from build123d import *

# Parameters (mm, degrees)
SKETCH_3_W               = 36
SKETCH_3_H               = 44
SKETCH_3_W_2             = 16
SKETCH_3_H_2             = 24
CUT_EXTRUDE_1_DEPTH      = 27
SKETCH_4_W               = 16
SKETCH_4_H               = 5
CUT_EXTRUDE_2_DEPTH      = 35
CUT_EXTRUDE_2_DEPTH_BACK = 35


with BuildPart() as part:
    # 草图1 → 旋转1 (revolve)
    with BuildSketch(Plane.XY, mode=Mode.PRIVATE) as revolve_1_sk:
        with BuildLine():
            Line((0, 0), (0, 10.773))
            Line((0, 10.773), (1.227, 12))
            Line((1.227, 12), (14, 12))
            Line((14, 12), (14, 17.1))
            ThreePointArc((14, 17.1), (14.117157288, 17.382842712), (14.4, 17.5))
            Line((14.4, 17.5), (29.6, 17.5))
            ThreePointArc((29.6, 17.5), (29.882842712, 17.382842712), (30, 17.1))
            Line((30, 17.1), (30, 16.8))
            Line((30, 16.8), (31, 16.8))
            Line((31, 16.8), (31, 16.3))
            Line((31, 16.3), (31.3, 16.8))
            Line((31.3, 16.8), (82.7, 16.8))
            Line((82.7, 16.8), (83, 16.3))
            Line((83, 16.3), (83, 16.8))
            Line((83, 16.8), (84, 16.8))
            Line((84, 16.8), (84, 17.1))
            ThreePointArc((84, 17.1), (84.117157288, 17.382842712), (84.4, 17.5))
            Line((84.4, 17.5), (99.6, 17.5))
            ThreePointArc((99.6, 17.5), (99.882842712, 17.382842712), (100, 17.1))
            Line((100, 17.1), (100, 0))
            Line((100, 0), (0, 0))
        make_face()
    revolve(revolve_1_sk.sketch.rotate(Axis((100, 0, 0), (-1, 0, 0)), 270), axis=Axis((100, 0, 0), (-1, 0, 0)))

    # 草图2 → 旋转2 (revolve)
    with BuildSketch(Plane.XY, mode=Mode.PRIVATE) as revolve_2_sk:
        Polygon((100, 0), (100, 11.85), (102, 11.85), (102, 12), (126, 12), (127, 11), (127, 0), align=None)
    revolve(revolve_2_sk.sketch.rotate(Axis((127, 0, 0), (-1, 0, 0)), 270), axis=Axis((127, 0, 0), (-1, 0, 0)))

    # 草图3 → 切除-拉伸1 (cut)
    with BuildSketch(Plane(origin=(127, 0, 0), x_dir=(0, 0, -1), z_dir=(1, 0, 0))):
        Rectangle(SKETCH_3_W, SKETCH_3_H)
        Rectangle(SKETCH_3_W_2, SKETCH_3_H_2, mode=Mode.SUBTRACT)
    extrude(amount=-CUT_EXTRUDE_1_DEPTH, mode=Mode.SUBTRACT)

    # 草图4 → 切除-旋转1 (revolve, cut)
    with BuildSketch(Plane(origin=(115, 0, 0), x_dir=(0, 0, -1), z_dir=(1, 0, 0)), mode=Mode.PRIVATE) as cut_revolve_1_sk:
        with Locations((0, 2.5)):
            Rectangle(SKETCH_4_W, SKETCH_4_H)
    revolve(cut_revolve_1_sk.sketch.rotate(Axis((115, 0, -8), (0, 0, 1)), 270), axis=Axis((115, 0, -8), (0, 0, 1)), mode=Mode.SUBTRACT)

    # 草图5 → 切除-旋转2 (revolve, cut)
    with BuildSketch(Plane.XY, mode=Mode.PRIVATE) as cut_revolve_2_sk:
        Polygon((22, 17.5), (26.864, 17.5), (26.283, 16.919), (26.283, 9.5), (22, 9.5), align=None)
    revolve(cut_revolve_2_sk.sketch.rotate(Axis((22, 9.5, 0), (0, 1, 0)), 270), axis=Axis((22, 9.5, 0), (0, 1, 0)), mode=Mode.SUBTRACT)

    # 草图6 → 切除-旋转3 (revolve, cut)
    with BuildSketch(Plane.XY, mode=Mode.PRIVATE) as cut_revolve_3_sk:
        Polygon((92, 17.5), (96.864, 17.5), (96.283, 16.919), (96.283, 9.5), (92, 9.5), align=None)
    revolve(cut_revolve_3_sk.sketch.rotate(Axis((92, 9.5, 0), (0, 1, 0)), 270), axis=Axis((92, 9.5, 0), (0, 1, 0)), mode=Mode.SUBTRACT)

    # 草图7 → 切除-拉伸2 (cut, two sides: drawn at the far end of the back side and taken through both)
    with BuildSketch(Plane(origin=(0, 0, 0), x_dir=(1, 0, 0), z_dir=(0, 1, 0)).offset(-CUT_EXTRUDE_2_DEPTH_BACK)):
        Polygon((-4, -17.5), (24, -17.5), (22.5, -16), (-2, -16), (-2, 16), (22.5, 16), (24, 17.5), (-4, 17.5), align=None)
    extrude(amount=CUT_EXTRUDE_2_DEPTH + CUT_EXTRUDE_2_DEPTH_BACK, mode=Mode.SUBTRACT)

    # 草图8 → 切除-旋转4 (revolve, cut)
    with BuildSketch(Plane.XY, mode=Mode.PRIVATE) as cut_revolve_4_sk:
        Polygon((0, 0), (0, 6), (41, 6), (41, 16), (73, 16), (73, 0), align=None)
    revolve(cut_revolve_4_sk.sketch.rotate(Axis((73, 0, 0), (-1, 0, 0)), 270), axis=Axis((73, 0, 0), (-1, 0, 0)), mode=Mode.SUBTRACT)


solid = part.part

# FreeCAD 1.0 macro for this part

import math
import FreeCAD as App
import Part
import Sketcher
from FreeCAD import Vector
Q = App.Units.Quantity


def add_polygon(sketch, points):
    """Adds a closed chain of lines whose ends are joined by coincident constraints."""
    first, n = sketch.GeometryCount, len(points)
    for a, b in zip(points, points[1:] + points[:1]):
        sketch.addGeometry(Part.LineSegment(App.Vector(*a, 0), App.Vector(*b, 0)), False)
    for i in range(n):
        sketch.addConstraint(Sketcher.Constraint("Coincident", first + i, 2, first + (i + 1) % n, 1))

doc = App.newDocument("Part")
body = doc.addObject("PartDesign::Body", "Body")

# Sketch on XY plane
sketch1 = body.newObject("Sketcher::SketchObject", "Sketch")
sketch1.AttachmentSupport = (doc.getObject("XY_Plane"), [""])
sketch1.MapMode = "FlatFace"
sketch1.addGeometry(Part.LineSegment(Vector(0, 10.773, 0), Vector(0, 0, 0)), False)
sketch1.addGeometry(Part.LineSegment(Vector(0, 0, 0), Vector(100, 0, 0)), False)
sketch1.addGeometry(Part.LineSegment(Vector(100, 0, 0), Vector(100, 17.1, 0)), False)
sketch1.addGeometry(Part.ArcOfCircle(Part.Circle(Vector(99.6, 17.1, 0), Vector(0, 0, 1), 0.4), math.radians(0), math.radians(90)), False)
sketch1.addGeometry(Part.LineSegment(Vector(99.6, 17.5, 0), Vector(84.4, 17.5, 0)), False)
sketch1.addGeometry(Part.ArcOfCircle(Part.Circle(Vector(84.4, 17.1, 0), Vector(0, 0, 1), 0.4), math.radians(90), math.radians(180)), False)
sketch1.addGeometry(Part.LineSegment(Vector(84, 17.1, 0), Vector(84, 16.8, 0)), False)
sketch1.addGeometry(Part.LineSegment(Vector(84, 16.8, 0), Vector(83, 16.8, 0)), False)
sketch1.addGeometry(Part.LineSegment(Vector(83, 16.8, 0), Vector(83, 16.3, 0)), False)
sketch1.addGeometry(Part.LineSegment(Vector(83, 16.3, 0), Vector(82.7, 16.8, 0)), False)
sketch1.addGeometry(Part.LineSegment(Vector(82.7, 16.8, 0), Vector(31.3, 16.8, 0)), False)
sketch1.addGeometry(Part.LineSegment(Vector(31.3, 16.8, 0), Vector(31, 16.3, 0)), False)
sketch1.addGeometry(Part.LineSegment(Vector(31, 16.3, 0), Vector(31, 16.8, 0)), False)
sketch1.addGeometry(Part.LineSegment(Vector(31, 16.8, 0), Vector(30, 16.8, 0)), False)
sketch1.addGeometry(Part.LineSegment(Vector(30, 16.8, 0), Vector(30, 17.1, 0)), False)
sketch1.addGeometry(Part.ArcOfCircle(Part.Circle(Vector(29.6, 17.1, 0), Vector(0, 0, 1), 0.4), math.radians(0), math.radians(90)), False)
sketch1.addGeometry(Part.LineSegment(Vector(29.6, 17.5, 0), Vector(14.4, 17.5, 0)), False)
sketch1.addGeometry(Part.ArcOfCircle(Part.Circle(Vector(14.4, 17.1, 0), Vector(0, 0, 1), 0.4), math.radians(90), math.radians(180)), False)
sketch1.addGeometry(Part.LineSegment(Vector(14, 17.1, 0), Vector(14, 12, 0)), False)
sketch1.addGeometry(Part.LineSegment(Vector(14, 12, 0), Vector(1.227, 12, 0)), False)
sketch1.addGeometry(Part.LineSegment(Vector(1.227, 12, 0), Vector(0, 10.773, 0)), False)
sketch1.addConstraint(Sketcher.Constraint("Coincident", 0, 2, 1, 1))
sketch1.addConstraint(Sketcher.Constraint("Coincident", 1, 2, 2, 1))
sketch1.addConstraint(Sketcher.Constraint("Tangent", 2, 2, 3, 1))
sketch1.addConstraint(Sketcher.Constraint("Tangent", 3, 2, 4, 1))
sketch1.addConstraint(Sketcher.Constraint("Tangent", 4, 2, 5, 1))
sketch1.addConstraint(Sketcher.Constraint("Tangent", 5, 2, 6, 1))
sketch1.addConstraint(Sketcher.Constraint("Coincident", 6, 2, 7, 1))
sketch1.addConstraint(Sketcher.Constraint("Coincident", 7, 2, 8, 1))
sketch1.addConstraint(Sketcher.Constraint("Coincident", 8, 2, 9, 1))
sketch1.addConstraint(Sketcher.Constraint("Coincident", 9, 2, 10, 1))
sketch1.addConstraint(Sketcher.Constraint("Coincident", 10, 2, 11, 1))
sketch1.addConstraint(Sketcher.Constraint("Coincident", 11, 2, 12, 1))
sketch1.addConstraint(Sketcher.Constraint("Coincident", 12, 2, 13, 1))
sketch1.addConstraint(Sketcher.Constraint("Coincident", 13, 2, 14, 1))
sketch1.addConstraint(Sketcher.Constraint("Tangent", 14, 2, 15, 1))
sketch1.addConstraint(Sketcher.Constraint("Tangent", 15, 2, 16, 1))
sketch1.addConstraint(Sketcher.Constraint("Tangent", 16, 2, 17, 1))
sketch1.addConstraint(Sketcher.Constraint("Tangent", 17, 2, 18, 1))
sketch1.addConstraint(Sketcher.Constraint("Coincident", 18, 2, 19, 1))
sketch1.addConstraint(Sketcher.Constraint("Coincident", 19, 2, 20, 1))
sketch1.addConstraint(Sketcher.Constraint("Coincident", 20, 2, 0, 1))
sketch1.addConstraint(Sketcher.Constraint("Vertical", 0))
sketch1.addConstraint(Sketcher.Constraint("Horizontal", 1))
sketch1.addConstraint(Sketcher.Constraint("Vertical", 2))
sketch1.addConstraint(Sketcher.Constraint("Horizontal", 4))
sketch1.addConstraint(Sketcher.Constraint("Vertical", 6))
sketch1.addConstraint(Sketcher.Constraint("Horizontal", 7))
sketch1.addConstraint(Sketcher.Constraint("Vertical", 8))
sketch1.addConstraint(Sketcher.Constraint("Horizontal", 10))
sketch1.addConstraint(Sketcher.Constraint("Vertical", 12))
sketch1.addConstraint(Sketcher.Constraint("Horizontal", 13))
sketch1.addConstraint(Sketcher.Constraint("Vertical", 14))
sketch1.addConstraint(Sketcher.Constraint("Horizontal", 16))
sketch1.addConstraint(Sketcher.Constraint("Vertical", 18))
sketch1.addConstraint(Sketcher.Constraint("Horizontal", 19))
sketch1.addConstraint(Sketcher.Constraint("Coincident", 0, 2, -1, 1))
sketch1.addConstraint(Sketcher.Constraint("Equal", 3, 5))
sketch1.addConstraint(Sketcher.Constraint("Equal", 5, 15))
sketch1.addConstraint(Sketcher.Constraint("Equal", 15, 17))
sketch1.addConstraint(Sketcher.Constraint("Horizontal", 5, 3, 15, 3))
sketch1.addConstraint(Sketcher.Constraint("Horizontal", 7, 2, 9, 2))
sketch1.addConstraint(Sketcher.Constraint("Horizontal", 8, 2, 11, 2))
sketch1.addConstraint(Sketcher.Constraint("Horizontal", 10, 2, 12, 2))
sketch1.addConstraint(Sketcher.Constraint("Equal", 7, 13))
sketch1.addConstraint(Sketcher.Constraint("Equal", 4, 16))
sketch1.addConstraint(Sketcher.Constraint("Equal", 9, 11))
sketch1.addConstraint(Sketcher.Constraint("Radius", 3, Q("0.4 mm")))
sketch1.addConstraint(Sketcher.Constraint("DistanceX", 1, 1, 1, 2, Q("100 mm")))
sketch1.addConstraint(Sketcher.Constraint("DistanceX", 7, 2, 7, 1, Q("1 mm")))
sketch1.addConstraint(Sketcher.Constraint("Angle", 20, Q("-135 deg")))
sketch1.addConstraint(Sketcher.Constraint("DistanceX", 4, 2, 4, 1, Q("15.2 mm")))
sketch1.addConstraint(Sketcher.Constraint("DistanceX", 10, 2, 10, 1, Q("51.4 mm")))
sketch1.addConstraint(Sketcher.Constraint("DistanceY", 2, 1, 2, 2, Q("17.1 mm")))
sketch1.addConstraint(Sketcher.Constraint("DistanceY", 6, 2, 6, 1, Q("0.3 mm")))
sketch1.addConstraint(Sketcher.Constraint("DistanceY", 8, 2, 8, 1, Q("0.5 mm")))
sketch1.addConstraint(Sketcher.Constraint("DistanceY", 18, 2, 18, 1, Q("5.1 mm")))
sketch1.addConstraint(Sketcher.Constraint("DistanceX", -1, 1, 11, 2, Q("31 mm")))
sketch1.addConstraint(Sketcher.Constraint("DistanceX", 19, 2, 19, 1, Q("12.773 mm")))
revolution = body.newObject("PartDesign::Revolution", "Revolution")
revolution.Profile = sketch1
revolution.ReferenceAxis = (sketch1, ["H_Axis"])
revolution.Angle = 360

# Sketch on XY plane
sketch2 = body.newObject("Sketcher::SketchObject", "Sketch001")
sketch2.AttachmentSupport = (doc.getObject("XY_Plane"), [""])
sketch2.MapMode = "FlatFace"
add_polygon(sketch2, [(100, 11.85), (100, 0), (127, 0), (127, 11), (126, 12), (102, 12), (102, 11.85)])  # lines 0-6
sketch2.addConstraint(Sketcher.Constraint("Vertical", 0))
sketch2.addConstraint(Sketcher.Constraint("Horizontal", 1))
sketch2.addConstraint(Sketcher.Constraint("Vertical", 2))
sketch2.addConstraint(Sketcher.Constraint("Horizontal", 4))
sketch2.addConstraint(Sketcher.Constraint("Vertical", 5))
sketch2.addConstraint(Sketcher.Constraint("Horizontal", 6))
sketch2.addConstraint(Sketcher.Constraint("PointOnObject", 0, 2, -1))
sketch2.addConstraint(Sketcher.Constraint("DistanceX", 1, 1, 1, 2, Q("27 mm")))
sketch2.addConstraint(Sketcher.Constraint("DistanceX", 4, 2, 4, 1, Q("24 mm")))
sketch2.addConstraint(Sketcher.Constraint("DistanceX", 6, 2, 6, 1, Q("2 mm")))
sketch2.addConstraint(Sketcher.Constraint("DistanceY", 2, 1, 2, 2, Q("11 mm")))
sketch2.addConstraint(Sketcher.Constraint("Angle", 3, Q("135 deg")))
sketch2.addConstraint(Sketcher.Constraint("DistanceX", -1, 1, 0, 2, Q("100 mm")))
sketch2.addConstraint(Sketcher.Constraint("DistanceY", 0, 2, 0, 1, Q("11.85 mm")))
revolution2 = body.newObject("PartDesign::Revolution", "Revolution001")
revolution2.Profile = sketch2
revolution2.ReferenceAxis = (sketch2, ["H_Axis"])
revolution2.Angle = 360

# Sketch on YZ plane
sketch3 = body.newObject("Sketcher::SketchObject", "Sketch002")
sketch3.AttachmentSupport = (doc.getObject("YZ_Plane"), [""])
sketch3.MapMode = "FlatFace"
sketch3.AttachmentOffset = App.Placement(Vector(0, 0, 127), App.Rotation())
add_polygon(sketch3, [(22, 18), (-22, 18), (-22, -18), (22, -18)])  # lines 0-3
add_polygon(sketch3, [(-12, -8), (-12, 8), (12, 8), (12, -8)])  # lines 4-7
sketch3.addConstraint(Sketcher.Constraint("Horizontal", 0))
sketch3.addConstraint(Sketcher.Constraint("Vertical", 1))
sketch3.addConstraint(Sketcher.Constraint("Horizontal", 2))
sketch3.addConstraint(Sketcher.Constraint("Vertical", 3))
sketch3.addConstraint(Sketcher.Constraint("Vertical", 4))
sketch3.addConstraint(Sketcher.Constraint("Horizontal", 5))
sketch3.addConstraint(Sketcher.Constraint("Vertical", 6))
sketch3.addConstraint(Sketcher.Constraint("Horizontal", 7))
sketch3.addConstraint(Sketcher.Constraint("Symmetric", 0, 2, 2, 2, -1, 1))
sketch3.addConstraint(Sketcher.Constraint("Symmetric", 4, 2, 6, 2, -1, 1))
sketch3.addConstraint(Sketcher.Constraint("DistanceX", 0, 2, 0, 1, Q("44 mm")))
sketch3.addConstraint(Sketcher.Constraint("DistanceX", 5, 1, 5, 2, Q("24 mm")))
sketch3.addConstraint(Sketcher.Constraint("DistanceY", 1, 2, 1, 1, Q("36 mm")))
sketch3.addConstraint(Sketcher.Constraint("DistanceY", 4, 1, 4, 2, Q("16 mm")))
pocket1 = body.newObject("PartDesign::Pocket", "Pocket")
pocket1.Profile = sketch3
pocket1.Length = 27

# Sketch on YZ plane
sketch4 = body.newObject("Sketcher::SketchObject", "Sketch003")
sketch4.AttachmentSupport = (doc.getObject("YZ_Plane"), [""])
sketch4.MapMode = "FlatFace"
sketch4.AttachmentOffset = App.Placement(Vector(0, 0, 115), App.Rotation())
add_polygon(sketch4, [(5, 8), (0, 8), (0, -8), (5, -8)])  # lines 0-3
sketch4.addConstraint(Sketcher.Constraint("Horizontal", 0))
sketch4.addConstraint(Sketcher.Constraint("Vertical", 1))
sketch4.addConstraint(Sketcher.Constraint("Horizontal", 2))
sketch4.addConstraint(Sketcher.Constraint("Vertical", 3))
sketch4.addConstraint(Sketcher.Constraint("Symmetric", 0, 2, 1, 2, -1, 1))
sketch4.addConstraint(Sketcher.Constraint("DistanceX", 0, 2, 0, 1, Q("5 mm")))
sketch4.addConstraint(Sketcher.Constraint("DistanceY", 1, 2, 1, 1, Q("16 mm")))
groove = body.newObject("PartDesign::Groove", "Groove")
groove.Profile = sketch4
groove.ReferenceAxis = (sketch4, ["V_Axis"])
groove.Angle = 360

# Sketch on XY plane
sketch5 = body.newObject("Sketcher::SketchObject", "Sketch004")
sketch5.AttachmentSupport = (doc.getObject("XY_Plane"), [""])
sketch5.MapMode = "FlatFace"
add_polygon(sketch5, [(26.864, 17.5), (22, 17.5), (22, 9.5), (26.283, 9.5), (26.283, 16.919)])  # lines 0-4
sketch5.addGeometry(Part.LineSegment(Vector(22, 9.5, 0), Vector(22, 17.5, 0)), True)  # axis
sketch5.addConstraint(Sketcher.Constraint("Horizontal", 0))
sketch5.addConstraint(Sketcher.Constraint("Vertical", 1))
sketch5.addConstraint(Sketcher.Constraint("Horizontal", 2))
sketch5.addConstraint(Sketcher.Constraint("Vertical", 3))
sketch5.addConstraint(Sketcher.Constraint("Vertical", 5))
sketch5.addConstraint(Sketcher.Constraint("Coincident", 5, 1, 1, 2))
sketch5.addConstraint(Sketcher.Constraint("Horizontal", 4, 2, 5, 2))
sketch5.addConstraint(Sketcher.Constraint("DistanceY", 1, 2, 1, 1, Q("8 mm")))
sketch5.addConstraint(Sketcher.Constraint("Angle", 4, Q("45 deg")))
sketch5.addConstraint(Sketcher.Constraint("DistanceX", -1, 1, 0, 2, Q("22 mm")))
sketch5.addConstraint(Sketcher.Constraint("DistanceY", -1, 1, 0, 2, Q("17.5 mm")))
sketch5.addConstraint(Sketcher.Constraint("DistanceX", 0, 2, 0, 1, Q("4.864 mm")))
sketch5.addConstraint(Sketcher.Constraint("DistanceX", 2, 1, 2, 2, Q("4.283 mm")))
groove2 = body.newObject("PartDesign::Groove", "Groove001")
groove2.Profile = sketch5
groove2.ReferenceAxis = (sketch5, ["Axis0"])
groove2.Angle = 360

# Sketch on XY plane
sketch6 = body.newObject("Sketcher::SketchObject", "Sketch005")
sketch6.AttachmentSupport = (doc.getObject("XY_Plane"), [""])
sketch6.MapMode = "FlatFace"
add_polygon(sketch6, [(96.864, 17.5), (92, 17.5), (92, 9.5), (96.283, 9.5), (96.283, 16.919)])  # lines 0-4
sketch6.addGeometry(Part.LineSegment(Vector(92, 9.5, 0), Vector(92, 17.5, 0)), True)  # axis
sketch6.addConstraint(Sketcher.Constraint("Horizontal", 0))
sketch6.addConstraint(Sketcher.Constraint("Vertical", 1))
sketch6.addConstraint(Sketcher.Constraint("Horizontal", 2))
sketch6.addConstraint(Sketcher.Constraint("Vertical", 3))
sketch6.addConstraint(Sketcher.Constraint("Vertical", 5))
sketch6.addConstraint(Sketcher.Constraint("Coincident", 5, 1, 1, 2))
sketch6.addConstraint(Sketcher.Constraint("Horizontal", 4, 2, 5, 2))
sketch6.addConstraint(Sketcher.Constraint("DistanceY", 1, 2, 1, 1, Q("8 mm")))
sketch6.addConstraint(Sketcher.Constraint("Angle", 4, Q("45 deg")))
sketch6.addConstraint(Sketcher.Constraint("DistanceX", -1, 1, 0, 2, Q("92 mm")))
sketch6.addConstraint(Sketcher.Constraint("DistanceY", -1, 1, 0, 2, Q("17.5 mm")))
sketch6.addConstraint(Sketcher.Constraint("DistanceX", 0, 2, 0, 1, Q("4.864 mm")))
sketch6.addConstraint(Sketcher.Constraint("DistanceX", 2, 1, 2, 2, Q("4.283 mm")))
groove3 = body.newObject("PartDesign::Groove", "Groove002")
groove3.Profile = sketch6
groove3.ReferenceAxis = (sketch6, ["Axis0"])
groove3.Angle = 360

# Sketch on XZ plane
sketch7 = body.newObject("Sketcher::SketchObject", "Sketch006")
sketch7.AttachmentSupport = (doc.getObject("XZ_Plane"), [""])
sketch7.MapMode = "FlatFace"
add_polygon(sketch7, [(-4, 17.5), (24, 17.5), (22.5, 16), (-2, 16), (-2, -16), (22.5, -16), (24, -17.5), (-4, -17.5)])  # lines 0-7
sketch7.addConstraint(Sketcher.Constraint("Horizontal", 0))
sketch7.addConstraint(Sketcher.Constraint("Horizontal", 2))
sketch7.addConstraint(Sketcher.Constraint("Vertical", 3))
sketch7.addConstraint(Sketcher.Constraint("Horizontal", 4))
sketch7.addConstraint(Sketcher.Constraint("Horizontal", 6))
sketch7.addConstraint(Sketcher.Constraint("Vertical", 7))
sketch7.addConstraint(Sketcher.Constraint("Symmetric", 1, 2, 4, 2, -1))
sketch7.addConstraint(Sketcher.Constraint("Symmetric", 0, 2, 5, 2, -1))
sketch7.addConstraint(Sketcher.Constraint("Perpendicular", 1, 5))
sketch7.addConstraint(Sketcher.Constraint("DistanceX", 0, 1, 0, 2, Q("28 mm")))
sketch7.addConstraint(Sketcher.Constraint("DistanceY", 3, 2, 3, 1, Q("32 mm")))
sketch7.addConstraint(Sketcher.Constraint("DistanceY", 7, 1, 7, 2, Q("35 mm")))
sketch7.addConstraint(Sketcher.Constraint("DistanceX", 2, 2, 2, 1, Q("24.5 mm")))
sketch7.addConstraint(Sketcher.Constraint("DistanceX", -1, 1, 0, 2, Q("24 mm")))
pocket2 = body.newObject("PartDesign::Pocket", "Pocket001")
pocket2.Profile = sketch7
pocket2.Type = "ThroughAll"
pocket2.Midplane = True

# Sketch on XY plane
sketch8 = body.newObject("Sketcher::SketchObject", "Sketch007")
sketch8.AttachmentSupport = (doc.getObject("XY_Plane"), [""])
sketch8.MapMode = "FlatFace"
add_polygon(sketch8, [(0, 6), (0, 0), (73, 0), (73, 16), (41, 16), (41, 6)])  # lines 0-5
sketch8.addConstraint(Sketcher.Constraint("Vertical", 0))
sketch8.addConstraint(Sketcher.Constraint("Horizontal", 1))
sketch8.addConstraint(Sketcher.Constraint("Vertical", 2))
sketch8.addConstraint(Sketcher.Constraint("Horizontal", 3))
sketch8.addConstraint(Sketcher.Constraint("Vertical", 4))
sketch8.addConstraint(Sketcher.Constraint("Horizontal", 5))
sketch8.addConstraint(Sketcher.Constraint("Coincident", 0, 2, -1, 1))
sketch8.addConstraint(Sketcher.Constraint("DistanceX", 1, 1, 1, 2, Q("73 mm")))
sketch8.addConstraint(Sketcher.Constraint("DistanceX", 3, 2, 3, 1, Q("32 mm")))
sketch8.addConstraint(Sketcher.Constraint("DistanceY", 0, 2, 0, 1, Q("6 mm")))
sketch8.addConstraint(Sketcher.Constraint("DistanceY", 2, 1, 2, 2, Q("16 mm")))
groove4 = body.newObject("PartDesign::Groove", "Groove003")
groove4.Profile = sketch8
groove4.ReferenceAxis = (sketch8, ["H_Axis"])
groove4.Angle = 360

doc.recompute()
